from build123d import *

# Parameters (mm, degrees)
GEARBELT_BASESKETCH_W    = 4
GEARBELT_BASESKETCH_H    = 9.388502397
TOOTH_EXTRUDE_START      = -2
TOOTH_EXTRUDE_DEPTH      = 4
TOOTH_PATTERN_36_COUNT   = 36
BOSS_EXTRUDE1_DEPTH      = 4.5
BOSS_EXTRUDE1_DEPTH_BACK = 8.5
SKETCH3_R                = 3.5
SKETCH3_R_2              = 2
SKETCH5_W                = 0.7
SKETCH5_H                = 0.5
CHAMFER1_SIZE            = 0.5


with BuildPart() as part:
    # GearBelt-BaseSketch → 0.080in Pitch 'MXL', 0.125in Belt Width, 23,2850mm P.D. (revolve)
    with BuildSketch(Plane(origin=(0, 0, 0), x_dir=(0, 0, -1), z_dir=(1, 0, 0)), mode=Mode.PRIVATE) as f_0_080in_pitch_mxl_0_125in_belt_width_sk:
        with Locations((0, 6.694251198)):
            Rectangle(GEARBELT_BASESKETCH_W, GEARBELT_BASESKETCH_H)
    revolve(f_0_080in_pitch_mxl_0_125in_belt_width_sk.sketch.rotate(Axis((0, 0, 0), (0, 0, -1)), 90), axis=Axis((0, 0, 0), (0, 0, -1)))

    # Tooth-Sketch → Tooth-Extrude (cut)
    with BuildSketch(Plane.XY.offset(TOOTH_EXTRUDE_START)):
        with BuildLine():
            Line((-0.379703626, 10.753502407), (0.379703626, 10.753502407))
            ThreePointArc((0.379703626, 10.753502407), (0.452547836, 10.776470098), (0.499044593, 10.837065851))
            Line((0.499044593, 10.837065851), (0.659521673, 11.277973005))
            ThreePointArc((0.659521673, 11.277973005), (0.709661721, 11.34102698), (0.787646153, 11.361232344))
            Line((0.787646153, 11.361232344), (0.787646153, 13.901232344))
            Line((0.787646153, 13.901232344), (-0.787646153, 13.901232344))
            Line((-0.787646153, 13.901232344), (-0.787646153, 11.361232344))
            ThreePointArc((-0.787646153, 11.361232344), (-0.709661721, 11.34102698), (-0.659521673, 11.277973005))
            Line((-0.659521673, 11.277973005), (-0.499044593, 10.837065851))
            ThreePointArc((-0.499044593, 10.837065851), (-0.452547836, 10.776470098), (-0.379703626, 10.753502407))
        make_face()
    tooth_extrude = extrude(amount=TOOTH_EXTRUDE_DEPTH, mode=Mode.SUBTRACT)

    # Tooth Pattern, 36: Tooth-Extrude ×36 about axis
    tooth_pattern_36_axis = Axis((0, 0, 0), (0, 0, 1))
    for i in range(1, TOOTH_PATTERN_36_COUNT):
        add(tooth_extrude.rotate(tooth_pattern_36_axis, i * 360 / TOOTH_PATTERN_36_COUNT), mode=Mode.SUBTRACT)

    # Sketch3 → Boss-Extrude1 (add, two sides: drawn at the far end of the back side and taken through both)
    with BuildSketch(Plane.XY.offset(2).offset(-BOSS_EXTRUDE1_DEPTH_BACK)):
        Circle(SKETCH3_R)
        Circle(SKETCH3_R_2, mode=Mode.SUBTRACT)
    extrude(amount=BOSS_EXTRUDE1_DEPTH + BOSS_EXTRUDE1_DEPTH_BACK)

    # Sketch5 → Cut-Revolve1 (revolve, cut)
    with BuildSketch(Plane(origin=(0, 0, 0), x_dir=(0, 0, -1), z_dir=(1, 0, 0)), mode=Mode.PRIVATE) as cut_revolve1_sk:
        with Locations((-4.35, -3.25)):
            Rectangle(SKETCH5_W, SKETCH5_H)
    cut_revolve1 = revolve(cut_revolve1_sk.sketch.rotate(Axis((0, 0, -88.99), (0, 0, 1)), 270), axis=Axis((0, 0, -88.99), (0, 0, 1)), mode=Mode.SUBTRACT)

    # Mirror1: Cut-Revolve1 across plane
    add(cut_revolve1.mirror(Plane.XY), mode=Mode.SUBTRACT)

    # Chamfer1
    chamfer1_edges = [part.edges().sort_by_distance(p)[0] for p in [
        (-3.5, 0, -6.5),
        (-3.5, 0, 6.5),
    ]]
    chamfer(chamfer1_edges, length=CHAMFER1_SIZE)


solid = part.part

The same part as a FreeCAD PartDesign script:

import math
import FreeCAD as App
import Part
import Sketcher
from FreeCAD import Vector
Q = App.Units.Quantity


def edges_at(feature, points):
    """Names of the edges that pass closest to the given points."""
    edges = feature.Shape.Edges
    near = lambda p: min(range(len(edges)), key=lambda i: edges[i].distToShape(Part.Vertex(*p))[0])
    return sorted({f"Edge{near(p) + 1}" for p in points})


def add_polygon(sketch, points):
    """Adds a closed chain of lines whose ends are joined by coincident constraints."""
    first, n = sketch.GeometryCount, len(points)
    for a, b in zip(points, points[1:] + points[:1]):
        sketch.addGeometry(Part.LineSegment(App.Vector(*a, 0), App.Vector(*b, 0)), False)
    for i in range(n):
        sketch.addConstraint(Sketcher.Constraint("Coincident", first + i, 2, first + (i + 1) % n, 1))

doc = App.newDocument("Part")
body = doc.addObject("PartDesign::Body", "Body")

# Sketch on YZ plane
sketch1 = body.newObject("Sketcher::SketchObject", "Sketch")
sketch1.AttachmentSupport = (doc.getObject("YZ_Plane"), [""])
sketch1.MapMode = "FlatFace"
add_polygon(sketch1, [(11.4, 2), (2, 2), (2, -2), (11.4, -2)])  # lines 0-3
sketch1.addConstraint(Sketcher.Constraint("Horizontal", 0))
sketch1.addConstraint(Sketcher.Constraint("Vertical", 1))
sketch1.addConstraint(Sketcher.Constraint("Horizontal", 2))
sketch1.addConstraint(Sketcher.Constraint("Vertical", 3))
sketch1.addConstraint(Sketcher.Constraint("DistanceY", 1, 2, 1, 1, 4.0))
sketch1.addConstraint(Sketcher.Constraint("DistanceX", -1, 1, 0, 2, 2.0))
sketch1.addConstraint(Sketcher.Constraint("DistanceY", -1, 1, 0, 2, 2.0))
sketch1.addConstraint(Sketcher.Constraint("DistanceX", 0, 2, 0, 1, 9.388502))
revolution = body.newObject("PartDesign::Revolution", "Revolution")
revolution.Profile = sketch1
revolution.ReferenceAxis = (sketch1, ["V_Axis"])
revolution.Angle = 360

# Sketch on XY plane
sketch2 = body.newObject("Sketcher::SketchObject", "Sketch001")
sketch2.AttachmentSupport = (doc.getObject("XY_Plane"), [""])
sketch2.MapMode = "FlatFace"
sketch2.AttachmentOffset = App.Placement(Vector(0, 0, -2), App.Rotation())
sketch2.addGeometry(Part.LineSegment(Vector(-0.38, 10.75, 0), Vector(0.38, 10.75, 0)), False)
sketch2.addGeometry(Part.ArcOfCircle(Part.Circle(Vector(0.38, 10.88, 0), Vector(0, 0, 1), 0.13), math.radians(-90), math.radians(-20)), False)
sketch2.addGeometry(Part.LineSegment(Vector(0.5, 10.84, 0), Vector(0.66, 11.28, 0)), False)
sketch2.addGeometry(Part.ArcOfCircle(Part.Circle(Vector(0.78, 11.23, 0), Vector(0, 0, 1), 0.13), math.radians(86), math.radians(160)), False)
sketch2.addGeometry(Part.LineSegment(Vector(0.79, 11.36, 0), Vector(0.79, 13.9, 0)), False)
sketch2.addGeometry(Part.LineSegment(Vector(0.79, 13.9, 0), Vector(-0.79, 13.9, 0)), False)
sketch2.addGeometry(Part.LineSegment(Vector(-0.79, 13.9, 0), Vector(-0.79, 11.36, 0)), False)
sketch2.addGeometry(Part.ArcOfCircle(Part.Circle(Vector(-0.78, 11.23, 0), Vector(0, 0, 1), 0.13), math.radians(20), math.radians(94)), False)
sketch2.addGeometry(Part.LineSegment(Vector(-0.66, 11.28, 0), Vector(-0.5, 10.84, 0)), False)
sketch2.addGeometry(Part.ArcOfCircle(Part.Circle(Vector(-0.38, 10.88, 0), Vector(0, 0, 1), 0.13), math.radians(-160), math.radians(-90)), False)
sketch2.addConstraint(Sketcher.Constraint("Tangent", 0, 2, 1, 1))
sketch2.addConstraint(Sketcher.Constraint("Tangent", 1, 2, 2, 1))
sketch2.addConstraint(Sketcher.Constraint("Tangent", 2, 2, 3, 2))
sketch2.addConstraint(Sketcher.Constraint("Coincident", 3, 1, 4, 1))
sketch2.addConstraint(Sketcher.Constraint("Coincident", 4, 2, 5, 1))
sketch2.addConstraint(Sketcher.Constraint("Coincident", 5, 2, 6, 1))
sketch2.addConstraint(Sketcher.Constraint("Coincident", 6, 2, 7, 2))
sketch2.addConstraint(Sketcher.Constraint("Tangent", 7, 1, 8, 1))
sketch2.addConstraint(Sketcher.Constraint("Tangent", 8, 2, 9, 1))
sketch2.addConstraint(Sketcher.Constraint("Tangent", 9, 2, 0, 1))
sketch2.addConstraint(Sketcher.Constraint("Horizontal", 0))
sketch2.addConstraint(Sketcher.Constraint("Vertical", 4))
sketch2.addConstraint(Sketcher.Constraint("Horizontal", 5))
sketch2.addConstraint(Sketcher.Constraint("Vertical", 6))
sketch2.addConstraint(Sketcher.Constraint("Equal", 1, 3))
sketch2.addConstraint(Sketcher.Constraint("Equal", 3, 7))
sketch2.addConstraint(Sketcher.Constraint("Equal", 7, 9))
sketch2.addConstraint(Sketcher.Constraint("Symmetric", 3, 3, 7, 3, -2))
sketch2.addConstraint(Sketcher.Constraint("Horizontal", 3, 1, 6, 2))
sketch2.addConstraint(Sketcher.Constraint("Horizontal", 2, 2, 7, 1))
sketch2.addConstraint(Sketcher.Constraint("Angle", 2, Q("70 deg")))
sketch2.addConstraint(Sketcher.Constraint("Radius", 1, 0.127))
sketch2.addConstraint(Sketcher.Constraint("DistanceY", 4, 1, 4, 2, 2.54))
sketch2.addConstraint(Sketcher.Constraint("DistanceX", 1, 2, 3, 1, 0.288602))
sketch2.addConstraint(Sketcher.Constraint("DistanceX", 0, 1, 0, 2, 0.759407))
sketch2.addConstraint(Sketcher.Constraint("DistanceX", -1, 1, 2, 2, 0.659522))
sketch2.addConstraint(Sketcher.Constraint("DistanceY", -1, 1, 1, 3, 10.880502))
pocket1 = body.newObject("PartDesign::Pocket", "Pocket")
pocket1.Profile = sketch2
pocket1.Length = 4
pocket1.Reversed = True
doc.recompute()

polarpattern = body.newObject("PartDesign::PolarPattern", "PolarPattern")
polarpattern.Originals = [pocket1]
polarpattern.Axis = (doc.getObject("Z_Axis"), [""])
polarpattern.Angle = 360
polarpattern.Occurrences = 36
body.Tip = polarpattern

# Sketch on XY plane
sketch3 = body.newObject("Sketcher::SketchObject", "Sketch002")
sketch3.AttachmentSupport = (doc.getObject("XY_Plane"), [""])
sketch3.MapMode = "FlatFace"
sketch3.AttachmentOffset = App.Placement(Vector(0, 0, 2), App.Rotation())
sketch3.addGeometry(Part.Circle(Vector(0, 0, 0), Vector(0, 0, 1), 3.5), False)
sketch3.addGeometry(Part.Circle(Vector(0, 0, 0), Vector(0, 0, 1), 2), False)
sketch3.addConstraint(Sketcher.Constraint("Coincident", 0, 3, -1, 1))
sketch3.addConstraint(Sketcher.Constraint("Coincident", 1, 3, -1, 1))
sketch3.addConstraint(Sketcher.Constraint("Diameter", 0, 7.0))
sketch3.addConstraint(Sketcher.Constraint("Diameter", 1, 4.0))
pad1 = body.newObject("PartDesign::Pad", "Pad")
pad1.Profile = sketch3
pad1.Type = "TwoLengths"
pad1.Length = 4.5
pad1.Length2 = 8.5

# Sketch on YZ plane
sketch4 = body.newObject("Sketcher::SketchObject", "Sketch003")
sketch4.AttachmentSupport = (doc.getObject("YZ_Plane"), [""])
sketch4.MapMode = "FlatFace"
add_polygon(sketch4, [(-3, 4.7), (-3.5, 4.7), (-3.5, 4), (-3, 4)])  # lines 0-3
sketch4.addConstraint(Sketcher.Constraint("Horizontal", 0))
sketch4.addConstraint(Sketcher.Constraint("Vertical", 1))
sketch4.addConstraint(Sketcher.Constraint("Horizontal", 2))
sketch4.addConstraint(Sketcher.Constraint("Vertical", 3))
sketch4.addConstraint(Sketcher.Constraint("DistanceX", 0, 2, 0, 1, 0.5))
sketch4.addConstraint(Sketcher.Constraint("DistanceY", 1, 2, 1, 1, 0.7))
sketch4.addConstraint(Sketcher.Constraint("DistanceY", -1, 1, 1, 2, 4.0))
sketch4.addConstraint(Sketcher.Constraint("DistanceX", 2, 2, -1, 1, 3.0))
groove = body.newObject("PartDesign::Groove", "Groove")
groove.Profile = sketch4
groove.ReferenceAxis = (sketch4, ["V_Axis"])
groove.Angle = 360
doc.recompute()

mirrored = body.newObject("PartDesign::Mirrored", "Mirrored")
mirrored.Originals = [groove]
mirrored.MirrorPlane = (doc.getObject("XY_Plane"), [""])
body.Tip = mirrored
doc.recompute()

chamfer = body.newObject("PartDesign::Chamfer", "Chamfer")
chamfer.Base = (mirrored, edges_at(mirrored, [(-3.5, 0, -6.5), (-3.5, 0, 6.5)]))
chamfer.Size = 0.5

doc.recompute()
